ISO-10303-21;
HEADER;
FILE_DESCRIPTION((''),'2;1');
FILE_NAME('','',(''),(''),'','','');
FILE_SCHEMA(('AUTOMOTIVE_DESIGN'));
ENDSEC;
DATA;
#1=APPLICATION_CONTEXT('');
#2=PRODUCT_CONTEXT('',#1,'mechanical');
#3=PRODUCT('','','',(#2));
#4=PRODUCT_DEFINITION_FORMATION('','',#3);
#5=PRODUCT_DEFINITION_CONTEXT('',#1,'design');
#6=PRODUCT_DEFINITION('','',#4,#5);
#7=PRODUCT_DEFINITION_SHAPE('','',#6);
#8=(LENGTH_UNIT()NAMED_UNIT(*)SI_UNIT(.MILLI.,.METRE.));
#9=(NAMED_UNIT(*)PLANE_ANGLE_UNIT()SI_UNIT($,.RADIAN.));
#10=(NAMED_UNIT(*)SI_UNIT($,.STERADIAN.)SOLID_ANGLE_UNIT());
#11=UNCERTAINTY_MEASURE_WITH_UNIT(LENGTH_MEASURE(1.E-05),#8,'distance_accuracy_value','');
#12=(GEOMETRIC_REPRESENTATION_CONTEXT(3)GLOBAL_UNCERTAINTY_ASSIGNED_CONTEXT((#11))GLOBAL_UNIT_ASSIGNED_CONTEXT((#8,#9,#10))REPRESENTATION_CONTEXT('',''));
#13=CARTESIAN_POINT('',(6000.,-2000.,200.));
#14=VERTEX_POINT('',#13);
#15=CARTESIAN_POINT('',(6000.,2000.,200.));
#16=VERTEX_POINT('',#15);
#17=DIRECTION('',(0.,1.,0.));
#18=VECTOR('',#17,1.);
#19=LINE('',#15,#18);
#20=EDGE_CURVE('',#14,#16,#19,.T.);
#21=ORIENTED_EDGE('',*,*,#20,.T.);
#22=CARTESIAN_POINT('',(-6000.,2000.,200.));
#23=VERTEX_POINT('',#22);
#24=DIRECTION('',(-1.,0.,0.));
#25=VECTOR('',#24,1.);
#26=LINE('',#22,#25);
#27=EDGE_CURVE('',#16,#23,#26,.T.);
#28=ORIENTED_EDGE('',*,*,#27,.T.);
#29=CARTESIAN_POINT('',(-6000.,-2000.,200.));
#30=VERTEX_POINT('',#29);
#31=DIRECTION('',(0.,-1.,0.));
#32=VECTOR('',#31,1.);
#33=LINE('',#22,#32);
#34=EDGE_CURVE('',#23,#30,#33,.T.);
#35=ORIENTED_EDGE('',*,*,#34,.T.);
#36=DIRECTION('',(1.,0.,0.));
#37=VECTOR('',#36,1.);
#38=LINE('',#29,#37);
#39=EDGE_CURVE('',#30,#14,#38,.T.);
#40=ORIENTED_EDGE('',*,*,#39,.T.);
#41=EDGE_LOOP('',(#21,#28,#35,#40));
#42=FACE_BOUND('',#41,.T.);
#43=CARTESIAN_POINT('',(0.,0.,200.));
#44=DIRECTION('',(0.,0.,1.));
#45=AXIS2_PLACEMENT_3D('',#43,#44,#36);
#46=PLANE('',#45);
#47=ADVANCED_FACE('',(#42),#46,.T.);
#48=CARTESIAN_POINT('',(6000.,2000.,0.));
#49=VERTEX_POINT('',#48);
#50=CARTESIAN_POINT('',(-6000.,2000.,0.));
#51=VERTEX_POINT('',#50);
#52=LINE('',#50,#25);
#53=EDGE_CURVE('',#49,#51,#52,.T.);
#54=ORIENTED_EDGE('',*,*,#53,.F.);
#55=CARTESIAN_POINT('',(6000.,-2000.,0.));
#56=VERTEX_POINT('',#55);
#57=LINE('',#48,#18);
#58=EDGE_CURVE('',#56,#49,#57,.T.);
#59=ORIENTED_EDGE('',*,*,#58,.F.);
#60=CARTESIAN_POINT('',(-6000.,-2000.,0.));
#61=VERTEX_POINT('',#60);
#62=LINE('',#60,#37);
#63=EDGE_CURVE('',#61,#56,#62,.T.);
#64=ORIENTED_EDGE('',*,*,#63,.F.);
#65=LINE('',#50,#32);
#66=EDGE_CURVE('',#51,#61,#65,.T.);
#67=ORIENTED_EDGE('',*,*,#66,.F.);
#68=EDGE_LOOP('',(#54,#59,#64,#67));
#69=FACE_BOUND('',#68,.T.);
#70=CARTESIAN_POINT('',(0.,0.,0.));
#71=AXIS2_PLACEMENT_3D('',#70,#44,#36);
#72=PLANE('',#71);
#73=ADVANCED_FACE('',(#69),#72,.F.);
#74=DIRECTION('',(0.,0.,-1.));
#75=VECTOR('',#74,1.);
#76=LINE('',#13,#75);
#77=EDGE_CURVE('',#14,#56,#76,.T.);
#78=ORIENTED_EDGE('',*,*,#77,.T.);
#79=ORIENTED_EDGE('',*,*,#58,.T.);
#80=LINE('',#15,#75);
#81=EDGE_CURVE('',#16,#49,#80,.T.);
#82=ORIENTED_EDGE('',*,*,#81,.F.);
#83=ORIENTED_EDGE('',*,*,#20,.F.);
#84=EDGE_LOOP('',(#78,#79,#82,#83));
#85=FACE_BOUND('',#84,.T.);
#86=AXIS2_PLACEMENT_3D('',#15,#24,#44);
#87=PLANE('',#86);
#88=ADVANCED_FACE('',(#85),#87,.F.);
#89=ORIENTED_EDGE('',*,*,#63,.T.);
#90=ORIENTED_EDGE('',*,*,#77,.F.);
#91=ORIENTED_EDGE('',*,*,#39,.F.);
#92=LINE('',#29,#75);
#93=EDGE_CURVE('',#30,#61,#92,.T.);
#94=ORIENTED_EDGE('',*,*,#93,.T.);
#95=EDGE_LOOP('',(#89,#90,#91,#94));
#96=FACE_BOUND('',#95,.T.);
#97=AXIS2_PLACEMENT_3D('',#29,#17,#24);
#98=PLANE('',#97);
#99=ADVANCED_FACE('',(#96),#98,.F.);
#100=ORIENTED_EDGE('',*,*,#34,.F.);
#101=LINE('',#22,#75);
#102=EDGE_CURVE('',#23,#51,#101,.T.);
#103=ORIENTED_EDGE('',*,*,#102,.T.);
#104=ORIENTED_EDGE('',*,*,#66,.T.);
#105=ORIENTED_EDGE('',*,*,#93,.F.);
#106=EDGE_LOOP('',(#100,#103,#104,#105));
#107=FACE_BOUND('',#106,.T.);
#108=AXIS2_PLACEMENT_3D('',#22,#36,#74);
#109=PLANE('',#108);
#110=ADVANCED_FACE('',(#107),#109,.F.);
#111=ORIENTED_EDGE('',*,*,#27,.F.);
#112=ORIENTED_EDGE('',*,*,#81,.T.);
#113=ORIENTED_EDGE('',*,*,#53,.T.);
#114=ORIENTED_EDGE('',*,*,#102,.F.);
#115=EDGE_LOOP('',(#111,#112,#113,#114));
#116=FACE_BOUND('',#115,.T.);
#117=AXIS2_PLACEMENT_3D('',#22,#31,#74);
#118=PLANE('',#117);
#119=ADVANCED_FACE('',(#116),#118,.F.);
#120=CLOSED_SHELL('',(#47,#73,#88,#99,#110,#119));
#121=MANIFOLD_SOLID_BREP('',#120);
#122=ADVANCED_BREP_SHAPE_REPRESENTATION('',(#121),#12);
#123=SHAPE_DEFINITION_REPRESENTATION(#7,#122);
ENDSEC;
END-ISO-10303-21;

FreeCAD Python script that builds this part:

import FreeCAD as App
import Part
import Sketcher

V = App.Vector
Q = App.Units.Quantity

doc = App.newDocument("Part")
body = doc.addObject("PartDesign::Body", "Body")

sketch1 = doc.addObject("Sketcher::SketchObject", "Sketch")
body.addObject(sketch1)
sketch1.AttachmentSupport = (doc.XY_Plane, [""])
sketch1.MapMode = "FlatFace"
sketch1.addGeometry([
    Part.LineSegment(V(-6000, 2000, 0), V(-6000, -2000, 0)),
    Part.LineSegment(V(-6000, -2000, 0), V(6000, -2000, 0)),
    Part.LineSegment(V(6000, -2000, 0), V(6000, 2000, 0)),
    Part.LineSegment(V(6000, 2000, 0), V(-6000, 2000, 0)),
], False)
sketch1.addConstraint([
    Sketcher.Constraint("Coincident", 0, 2, 1, 1),
    Sketcher.Constraint("Coincident", 1, 2, 2, 1),
    Sketcher.Constraint("Coincident", 2, 2, 3, 1),
    Sketcher.Constraint("Coincident", 3, 2, 0, 1),
    Sketcher.Constraint("Vertical", 0),
    Sketcher.Constraint("Horizontal", 1),
    Sketcher.Constraint("Vertical", 2),
    Sketcher.Constraint("Horizontal", 3),
    Sketcher.Constraint("Symmetric", 0, 2, 2, 2, -1, 1),
    Sketcher.Constraint("DistanceX", 1, 1, 1, 2, Q("12000 mm")),
    Sketcher.Constraint("DistanceY", 0, 2, 0, 1, Q("4000 mm")),
])
pad1 = doc.addObject("PartDesign::Pad", "Pad")
body.addObject(pad1)
pad1.Profile = sketch1
pad1.Length = 200

doc.recompute()
